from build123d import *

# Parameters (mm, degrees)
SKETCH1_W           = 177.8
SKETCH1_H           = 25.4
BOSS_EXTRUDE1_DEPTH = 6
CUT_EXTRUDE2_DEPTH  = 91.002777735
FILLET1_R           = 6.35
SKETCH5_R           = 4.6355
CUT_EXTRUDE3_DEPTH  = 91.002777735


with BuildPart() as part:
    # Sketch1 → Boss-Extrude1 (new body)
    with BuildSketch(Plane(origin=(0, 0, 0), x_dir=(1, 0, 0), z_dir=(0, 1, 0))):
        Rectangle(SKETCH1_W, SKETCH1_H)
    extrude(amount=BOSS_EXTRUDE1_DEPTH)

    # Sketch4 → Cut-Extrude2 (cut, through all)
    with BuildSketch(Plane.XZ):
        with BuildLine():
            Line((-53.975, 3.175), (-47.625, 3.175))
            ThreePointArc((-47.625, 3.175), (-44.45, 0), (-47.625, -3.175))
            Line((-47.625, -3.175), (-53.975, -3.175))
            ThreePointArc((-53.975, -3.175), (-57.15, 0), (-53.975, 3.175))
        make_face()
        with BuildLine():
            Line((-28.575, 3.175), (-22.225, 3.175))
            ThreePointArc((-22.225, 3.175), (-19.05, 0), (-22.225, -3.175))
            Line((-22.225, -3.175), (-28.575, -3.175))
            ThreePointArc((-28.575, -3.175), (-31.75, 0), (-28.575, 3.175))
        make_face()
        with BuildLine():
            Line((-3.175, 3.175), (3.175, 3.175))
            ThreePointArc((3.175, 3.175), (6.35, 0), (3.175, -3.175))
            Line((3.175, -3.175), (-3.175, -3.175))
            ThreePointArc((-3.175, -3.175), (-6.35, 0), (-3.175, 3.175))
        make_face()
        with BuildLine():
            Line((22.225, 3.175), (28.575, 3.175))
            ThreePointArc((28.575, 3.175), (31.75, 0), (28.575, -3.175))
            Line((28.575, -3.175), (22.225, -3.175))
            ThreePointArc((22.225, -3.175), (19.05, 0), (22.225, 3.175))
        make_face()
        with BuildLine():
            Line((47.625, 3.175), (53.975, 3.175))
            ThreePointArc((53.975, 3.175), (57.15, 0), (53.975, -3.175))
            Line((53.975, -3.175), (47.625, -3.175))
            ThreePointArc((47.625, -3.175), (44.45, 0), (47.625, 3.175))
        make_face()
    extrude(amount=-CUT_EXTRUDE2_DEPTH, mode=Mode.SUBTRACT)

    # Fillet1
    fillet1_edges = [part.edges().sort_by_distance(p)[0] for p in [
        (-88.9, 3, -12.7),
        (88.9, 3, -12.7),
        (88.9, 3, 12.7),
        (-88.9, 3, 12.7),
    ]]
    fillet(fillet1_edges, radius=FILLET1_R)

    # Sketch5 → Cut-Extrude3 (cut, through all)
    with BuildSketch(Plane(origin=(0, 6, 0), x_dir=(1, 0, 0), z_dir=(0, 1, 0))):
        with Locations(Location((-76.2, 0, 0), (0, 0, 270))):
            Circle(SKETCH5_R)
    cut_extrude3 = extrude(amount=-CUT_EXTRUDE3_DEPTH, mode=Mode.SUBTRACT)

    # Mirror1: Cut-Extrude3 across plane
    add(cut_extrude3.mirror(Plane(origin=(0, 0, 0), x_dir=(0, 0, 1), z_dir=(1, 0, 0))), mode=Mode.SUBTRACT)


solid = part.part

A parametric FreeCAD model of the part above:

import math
import FreeCAD as App
import Part
import Sketcher
Q = App.Units.Quantity


def edges_at(feature, points):
    """Names of the edges that pass closest to the given points."""
    edges = feature.Shape.Edges
    near = lambda p: min(range(len(edges)), key=lambda i: edges[i].distToShape(Part.Vertex(*p))[0])
    return sorted({f"Edge{near(p) + 1}" for p in points})

doc = App.newDocument("Part")
body = doc.addObject("PartDesign::Body", "Body")

# Sketch on XZ plane
sketch1 = body.newObject("Sketcher::SketchObject", "Sketch")
sketch1.AttachmentSupport = (doc.getObject("XZ_Plane"), [""])
sketch1.MapMode = "FlatFace"
sketch1.addGeometry([
    Part.LineSegment(App.Vector(-88.9, -12.7, 0), App.Vector(-88.9, 12.7, 0)),
    Part.LineSegment(App.Vector(-88.9, 12.7, 0), App.Vector(88.9, 12.7, 0)),
    Part.LineSegment(App.Vector(88.9, 12.7, 0), App.Vector(88.9, -12.7, 0)),
    Part.LineSegment(App.Vector(88.9, -12.7, 0), App.Vector(-88.9, -12.7, 0)),
], False)
sketch1.addConstraint([
    Sketcher.Constraint("Coincident", 0, 2, 1, 1),
    Sketcher.Constraint("Coincident", 1, 2, 2, 1),
    Sketcher.Constraint("Coincident", 2, 2, 3, 1),
    Sketcher.Constraint("Coincident", 3, 2, 0, 1),
    Sketcher.Constraint("Vertical", 0),
    Sketcher.Constraint("Horizontal", 1),
    Sketcher.Constraint("Vertical", 2),
    Sketcher.Constraint("Horizontal", 3),
    Sketcher.Constraint("Symmetric", 0, 2, 2, 2, -1, 1),
    Sketcher.Constraint("DistanceX", 1, 1, 1, 2, Q("7 in")),
    Sketcher.Constraint("DistanceY", 0, 1, 0, 2, Q("1 in")),
])
pad1 = body.newObject("PartDesign::Pad", "Pad")
pad1.Profile = sketch1
pad1.Length = 6
pad1.Reversed = True

# Sketch on XZ plane
sketch2 = body.newObject("Sketcher::SketchObject", "Sketch001")
sketch2.AttachmentSupport = (doc.getObject("XZ_Plane"), [""])
sketch2.MapMode = "FlatFace"
sketch2.addGeometry([
    Part.LineSegment(App.Vector(-47.625, 3.175, 0), App.Vector(-53.975, 3.175, 0)),  # 0
    Part.ArcOfCircle(Part.Circle(App.Vector(-53.975, 0, 0), App.Vector(0, 0, 1), 3.175), math.radians(90), math.radians(270)),  # 1
    Part.LineSegment(App.Vector(-53.975, -3.175, 0), App.Vector(-47.625, -3.175, 0)),  # 2
    Part.ArcOfCircle(Part.Circle(App.Vector(-47.625, 0, 0), App.Vector(0, 0, 1), 3.175), math.radians(-90), math.radians(90)),  # 3
    Part.LineSegment(App.Vector(-22.225, 3.175, 0), App.Vector(-28.575, 3.175, 0)),  # 4
    Part.ArcOfCircle(Part.Circle(App.Vector(-28.575, 0, 0), App.Vector(0, 0, 1), 3.175), math.radians(90), math.radians(270)),  # 5
    Part.LineSegment(App.Vector(-28.575, -3.175, 0), App.Vector(-22.225, -3.175, 0)),  # 6
    Part.ArcOfCircle(Part.Circle(App.Vector(-22.225, 0, 0), App.Vector(0, 0, 1), 3.175), math.radians(-90), math.radians(90)),  # 7
    Part.LineSegment(App.Vector(3.175, 3.175, 0), App.Vector(-3.175, 3.175, 0)),  # 8
    Part.ArcOfCircle(Part.Circle(App.Vector(-3.175, 0, 0), App.Vector(0, 0, 1), 3.175), math.radians(90), math.radians(270)),  # 9
    Part.LineSegment(App.Vector(-3.175, -3.175, 0), App.Vector(3.175, -3.175, 0)),  # 10
    Part.ArcOfCircle(Part.Circle(App.Vector(3.175, 0, 0), App.Vector(0, 0, 1), 3.175), math.radians(-90), math.radians(90)),  # 11
    Part.LineSegment(App.Vector(28.575, 3.175, 0), App.Vector(22.225, 3.175, 0)),  # 12
    Part.ArcOfCircle(Part.Circle(App.Vector(22.225, 0, 0), App.Vector(0, 0, 1), 3.175), math.radians(90), math.radians(270)),  # 13
    Part.LineSegment(App.Vector(22.225, -3.175, 0), App.Vector(28.575, -3.175, 0)),  # 14
    Part.ArcOfCircle(Part.Circle(App.Vector(28.575, 0, 0), App.Vector(0, 0, 1), 3.175), math.radians(-90), math.radians(90)),  # 15
    Part.LineSegment(App.Vector(53.975, 3.175, 0), App.Vector(47.625, 3.175, 0)),  # 16
    Part.ArcOfCircle(Part.Circle(App.Vector(47.625, 0, 0), App.Vector(0, 0, 1), 3.175), math.radians(90), math.radians(270)),  # 17
    Part.LineSegment(App.Vector(47.625, -3.175, 0), App.Vector(53.975, -3.175, 0)),  # 18
    Part.ArcOfCircle(Part.Circle(App.Vector(53.975, 0, 0), App.Vector(0, 0, 1), 3.175), math.radians(-90), math.radians(90)),  # 19
], False)
sketch2.addConstraint([
    Sketcher.Constraint("Tangent", 0, 2, 1, 1),
    Sketcher.Constraint("Tangent", 1, 2, 2, 1),
    Sketcher.Constraint("Tangent", 2, 2, 3, 1),
    Sketcher.Constraint("Tangent", 3, 2, 0, 1),
    Sketcher.Constraint("Tangent", 4, 2, 5, 1),
    Sketcher.Constraint("Tangent", 5, 2, 6, 1),
    Sketcher.Constraint("Tangent", 6, 2, 7, 1),
    Sketcher.Constraint("Tangent", 7, 2, 4, 1),
    Sketcher.Constraint("Tangent", 8, 2, 9, 1),
    Sketcher.Constraint("Tangent", 9, 2, 10, 1),
    Sketcher.Constraint("Tangent", 10, 2, 11, 1),
    Sketcher.Constraint("Tangent", 11, 2, 8, 1),
    Sketcher.Constraint("Tangent", 12, 2, 13, 1),
    Sketcher.Constraint("Tangent", 13, 2, 14, 1),
    Sketcher.Constraint("Tangent", 14, 2, 15, 1),
    Sketcher.Constraint("Tangent", 15, 2, 12, 1),
    Sketcher.Constraint("Tangent", 16, 2, 17, 1),
    Sketcher.Constraint("Tangent", 17, 2, 18, 1),
    Sketcher.Constraint("Tangent", 18, 2, 19, 1),
    Sketcher.Constraint("Tangent", 19, 2, 16, 1),
    Sketcher.Constraint("Horizontal", 0),
    Sketcher.Constraint("Horizontal", 2),
    Sketcher.Constraint("Horizontal", 4),
    Sketcher.Constraint("Horizontal", 6),
    Sketcher.Constraint("Horizontal", 8),
    Sketcher.Constraint("Horizontal", 10),
    Sketcher.Constraint("Horizontal", 12),
    Sketcher.Constraint("Horizontal", 14),
    Sketcher.Constraint("Horizontal", 16),
    Sketcher.Constraint("Horizontal", 18),
    Sketcher.Constraint("Equal", 3, 5),
    Sketcher.Constraint("Equal", 7, 9),
    Sketcher.Constraint("Equal", 11, 13),
    Sketcher.Constraint("Equal", 15, 17),
    Sketcher.Constraint("Symmetric", 9, 3, 11, 3, -1, 1),
    Sketcher.Constraint("Symmetric", 7, 3, 13, 3, -1, 1),
    Sketcher.Constraint("Symmetric", 3, 3, 17, 3, -1, 1),
    Sketcher.Constraint("Symmetric", 5, 3, 15, 3, -2),
    Sketcher.Constraint("Symmetric", 1, 3, 19, 3, -2),
    Sketcher.Constraint("Equal", 2, 4),
    Sketcher.Constraint("Equal", 6, 8),
    Sketcher.Constraint("Radius", 1, Q("0.125 in")),
    Sketcher.Constraint("DistanceX", 1, 3, 5, 3, Q("1 in")),
    Sketcher.Constraint("DistanceX", 5, 3, 9, 3, Q("1 in")),
    Sketcher.Constraint("DistanceX", 0, 2, 0, 1, Q("0.25 in")),
])
pocket1 = body.newObject("PartDesign::Pocket", "Pocket")
pocket1.Profile = sketch2
pocket1.Type = "ThroughAll"
doc.recompute()

fillet = body.newObject("PartDesign::Fillet", "Fillet")
fillet.Base = (pocket1, edges_at(pocket1, [
    (-88.9, 3, -12.7),
    (88.9, 3, -12.7),
    (88.9, 3, 12.7),
    (-88.9, 3, 12.7),
]))
fillet.Radius = Q("0.25 in")

# Sketch on XZ plane
sketch3 = body.newObject("Sketcher::SketchObject", "Sketch002")
sketch3.AttachmentSupport = (doc.getObject("XZ_Plane"), [""])
sketch3.MapMode = "FlatFace"
sketch3.AttachmentOffset = App.Placement(App.Vector(0, 0, -6), App.Rotation())
sketch3.addGeometry(Part.Circle(App.Vector(-76.2, 0, 0), App.Vector(0, 0, 1), 4.6355), False)
sketch3.addConstraint([
    Sketcher.Constraint("PointOnObject", 0, 3, -1),
    Sketcher.Constraint("Diameter", 0, Q("0.365 in")),
    Sketcher.Constraint("DistanceX", 0, 3, -1, 1, Q("3 in")),
])
pocket2 = body.newObject("PartDesign::Pocket", "Pocket001")
pocket2.Profile = sketch3
pocket2.Type = "ThroughAll"
pocket2.Reversed = True
doc.recompute()

mirrored = body.newObject("PartDesign::Mirrored", "Mirrored")
mirrored.Originals = [pocket2]
mirrored.MirrorPlane = (doc.getObject("YZ_Plane"), [""])
body.Tip = mirrored

doc.recompute()
